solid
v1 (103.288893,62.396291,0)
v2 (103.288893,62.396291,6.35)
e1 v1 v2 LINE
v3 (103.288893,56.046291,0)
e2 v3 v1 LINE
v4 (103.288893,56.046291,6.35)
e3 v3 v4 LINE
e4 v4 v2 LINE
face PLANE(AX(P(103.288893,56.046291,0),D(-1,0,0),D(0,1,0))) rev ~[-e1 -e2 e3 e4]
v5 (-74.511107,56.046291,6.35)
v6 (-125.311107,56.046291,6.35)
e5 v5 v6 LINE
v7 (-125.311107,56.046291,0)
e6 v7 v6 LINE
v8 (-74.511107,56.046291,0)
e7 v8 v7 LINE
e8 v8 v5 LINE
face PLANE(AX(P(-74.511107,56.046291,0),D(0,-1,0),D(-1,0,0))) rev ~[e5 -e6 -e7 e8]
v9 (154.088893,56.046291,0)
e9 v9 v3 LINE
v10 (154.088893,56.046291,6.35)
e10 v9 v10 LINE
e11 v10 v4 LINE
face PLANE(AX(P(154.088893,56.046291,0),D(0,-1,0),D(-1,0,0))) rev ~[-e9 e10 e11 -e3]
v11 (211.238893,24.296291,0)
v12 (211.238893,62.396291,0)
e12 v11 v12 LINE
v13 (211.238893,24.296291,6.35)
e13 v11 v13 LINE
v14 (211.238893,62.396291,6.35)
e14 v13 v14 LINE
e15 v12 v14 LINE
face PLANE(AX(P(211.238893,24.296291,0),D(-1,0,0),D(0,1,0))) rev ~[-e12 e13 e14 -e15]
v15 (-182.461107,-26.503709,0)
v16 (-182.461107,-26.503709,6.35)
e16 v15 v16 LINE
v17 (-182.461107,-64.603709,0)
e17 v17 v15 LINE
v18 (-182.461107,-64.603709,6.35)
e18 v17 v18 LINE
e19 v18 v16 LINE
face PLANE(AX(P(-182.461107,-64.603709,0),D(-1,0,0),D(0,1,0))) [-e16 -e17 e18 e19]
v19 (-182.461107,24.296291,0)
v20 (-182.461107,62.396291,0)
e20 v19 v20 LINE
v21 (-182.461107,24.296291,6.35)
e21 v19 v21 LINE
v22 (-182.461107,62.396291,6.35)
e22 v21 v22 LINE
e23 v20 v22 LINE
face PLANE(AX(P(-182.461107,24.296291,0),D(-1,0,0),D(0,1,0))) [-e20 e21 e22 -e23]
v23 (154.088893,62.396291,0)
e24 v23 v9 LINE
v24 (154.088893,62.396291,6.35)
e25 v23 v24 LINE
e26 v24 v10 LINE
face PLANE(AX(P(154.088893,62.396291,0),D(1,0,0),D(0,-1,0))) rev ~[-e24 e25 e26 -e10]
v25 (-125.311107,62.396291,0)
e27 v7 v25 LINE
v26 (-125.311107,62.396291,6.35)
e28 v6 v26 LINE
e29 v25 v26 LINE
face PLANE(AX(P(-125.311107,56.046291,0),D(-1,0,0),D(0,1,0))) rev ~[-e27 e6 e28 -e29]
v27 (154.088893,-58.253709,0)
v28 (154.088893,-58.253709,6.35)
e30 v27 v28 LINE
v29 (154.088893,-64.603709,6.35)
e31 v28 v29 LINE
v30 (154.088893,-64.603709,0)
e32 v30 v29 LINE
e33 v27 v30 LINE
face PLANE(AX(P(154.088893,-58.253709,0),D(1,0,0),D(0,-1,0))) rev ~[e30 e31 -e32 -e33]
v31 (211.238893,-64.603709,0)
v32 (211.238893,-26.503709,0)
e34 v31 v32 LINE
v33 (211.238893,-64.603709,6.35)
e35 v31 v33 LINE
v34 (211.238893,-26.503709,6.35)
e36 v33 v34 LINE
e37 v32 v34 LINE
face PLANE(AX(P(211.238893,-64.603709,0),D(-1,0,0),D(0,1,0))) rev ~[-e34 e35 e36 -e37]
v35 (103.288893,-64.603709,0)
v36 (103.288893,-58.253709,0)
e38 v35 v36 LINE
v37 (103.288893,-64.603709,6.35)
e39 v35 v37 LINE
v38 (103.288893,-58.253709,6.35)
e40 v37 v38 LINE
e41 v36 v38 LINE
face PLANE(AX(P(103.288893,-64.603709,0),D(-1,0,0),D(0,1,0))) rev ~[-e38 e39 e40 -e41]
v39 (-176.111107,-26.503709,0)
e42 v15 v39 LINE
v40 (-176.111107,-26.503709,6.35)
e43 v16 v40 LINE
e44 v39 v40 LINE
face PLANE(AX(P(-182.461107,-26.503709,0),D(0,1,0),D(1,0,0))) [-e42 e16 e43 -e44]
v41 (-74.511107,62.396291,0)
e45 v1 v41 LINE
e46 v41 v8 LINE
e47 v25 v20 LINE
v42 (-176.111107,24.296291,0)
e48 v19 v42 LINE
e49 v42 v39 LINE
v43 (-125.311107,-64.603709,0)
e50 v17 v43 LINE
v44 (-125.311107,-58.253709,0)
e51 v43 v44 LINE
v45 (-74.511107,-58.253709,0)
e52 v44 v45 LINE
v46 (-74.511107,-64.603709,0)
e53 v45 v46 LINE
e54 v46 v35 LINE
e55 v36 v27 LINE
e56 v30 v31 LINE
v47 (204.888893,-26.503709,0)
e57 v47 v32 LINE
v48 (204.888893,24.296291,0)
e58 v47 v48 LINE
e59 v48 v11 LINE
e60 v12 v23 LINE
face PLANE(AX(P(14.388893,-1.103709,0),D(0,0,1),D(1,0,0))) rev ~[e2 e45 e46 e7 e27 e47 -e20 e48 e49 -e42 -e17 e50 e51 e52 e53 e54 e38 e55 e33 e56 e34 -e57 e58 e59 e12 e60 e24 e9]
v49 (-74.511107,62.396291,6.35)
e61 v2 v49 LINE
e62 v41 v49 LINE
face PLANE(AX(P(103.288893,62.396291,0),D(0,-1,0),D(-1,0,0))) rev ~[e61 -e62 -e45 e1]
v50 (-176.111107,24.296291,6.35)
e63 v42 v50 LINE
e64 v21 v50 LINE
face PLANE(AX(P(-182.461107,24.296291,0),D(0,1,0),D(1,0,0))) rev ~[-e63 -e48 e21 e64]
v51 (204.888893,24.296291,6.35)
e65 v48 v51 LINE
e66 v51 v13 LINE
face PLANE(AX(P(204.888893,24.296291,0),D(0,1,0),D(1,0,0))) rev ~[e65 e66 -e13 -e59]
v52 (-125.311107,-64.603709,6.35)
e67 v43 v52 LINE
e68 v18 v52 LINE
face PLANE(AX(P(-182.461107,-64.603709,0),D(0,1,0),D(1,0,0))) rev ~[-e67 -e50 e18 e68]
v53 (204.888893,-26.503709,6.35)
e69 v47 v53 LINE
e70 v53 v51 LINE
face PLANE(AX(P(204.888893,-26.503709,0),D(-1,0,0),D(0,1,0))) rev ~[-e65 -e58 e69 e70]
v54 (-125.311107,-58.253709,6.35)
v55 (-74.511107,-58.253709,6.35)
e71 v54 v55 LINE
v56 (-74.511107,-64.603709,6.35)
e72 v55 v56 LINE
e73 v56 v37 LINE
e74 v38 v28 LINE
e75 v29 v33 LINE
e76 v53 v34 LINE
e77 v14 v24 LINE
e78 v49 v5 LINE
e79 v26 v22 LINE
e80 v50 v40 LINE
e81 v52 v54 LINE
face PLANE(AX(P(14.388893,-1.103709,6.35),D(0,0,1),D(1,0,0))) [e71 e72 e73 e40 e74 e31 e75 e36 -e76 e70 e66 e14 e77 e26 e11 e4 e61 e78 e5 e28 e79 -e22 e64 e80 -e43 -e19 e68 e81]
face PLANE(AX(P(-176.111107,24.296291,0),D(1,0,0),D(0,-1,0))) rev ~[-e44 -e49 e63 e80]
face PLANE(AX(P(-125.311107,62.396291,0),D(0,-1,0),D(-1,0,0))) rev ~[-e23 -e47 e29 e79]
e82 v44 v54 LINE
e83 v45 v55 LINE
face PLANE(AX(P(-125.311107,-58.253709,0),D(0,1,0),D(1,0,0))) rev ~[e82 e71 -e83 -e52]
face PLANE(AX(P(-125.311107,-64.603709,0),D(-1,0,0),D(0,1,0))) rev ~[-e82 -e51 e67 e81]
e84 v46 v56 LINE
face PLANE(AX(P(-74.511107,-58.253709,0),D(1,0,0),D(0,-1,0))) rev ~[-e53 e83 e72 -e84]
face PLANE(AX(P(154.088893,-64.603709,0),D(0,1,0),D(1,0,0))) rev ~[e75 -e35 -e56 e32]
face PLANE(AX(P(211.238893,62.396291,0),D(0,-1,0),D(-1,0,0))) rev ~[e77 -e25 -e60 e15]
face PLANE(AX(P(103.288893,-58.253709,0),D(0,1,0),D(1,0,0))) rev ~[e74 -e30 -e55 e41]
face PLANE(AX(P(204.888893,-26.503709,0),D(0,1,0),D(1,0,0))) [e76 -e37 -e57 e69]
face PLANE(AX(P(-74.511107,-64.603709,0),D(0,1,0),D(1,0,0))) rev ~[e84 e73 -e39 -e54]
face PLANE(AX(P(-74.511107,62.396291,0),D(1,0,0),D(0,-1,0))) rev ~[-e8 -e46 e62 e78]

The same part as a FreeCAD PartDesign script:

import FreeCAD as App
import Part
import Sketcher
Q = App.Units.Quantity


def add_polygon(sketch, points):
    """Adds a closed chain of lines whose ends are joined by coincident constraints."""
    first, n = sketch.GeometryCount, len(points)
    for a, b in zip(points, points[1:] + points[:1]):
        sketch.addGeometry(Part.LineSegment(App.Vector(*a, 0), App.Vector(*b, 0)), False)
    for i in range(n):
        sketch.addConstraint(Sketcher.Constraint("Coincident", first + i, 2, first + (i + 1) % n, 1))

doc = App.newDocument("Part")
body = doc.addObject("PartDesign::Body", "Body")

# Sketch on XY plane
sketch1 = body.newObject("Sketcher::SketchObject", "Sketch")
sketch1.AttachmentSupport = (doc.getObject("XY_Plane"), [""])
sketch1.MapMode = "FlatFace"
add_polygon(sketch1, [(-125, 62), (-182, 62), (-182, 24), (-176, 24), (-176, -27), (-182, -27), (-182, -65), (-125, -65), (-125, -58), (-75, -58), (-75, -65), (103, -65), (103, -58), (154, -58), (154, -65), (211, -65), (211, -27), (205, -27), (205, 24), (211, 24), (211, 62), (154, 62), (154, 56), (103, 56), (103, 62), (-75, 62), (-75, 56), (-125, 56)])  # lines 0-27
sketch1.addConstraint([
    Sketcher.Constraint("Horizontal", 0),
    Sketcher.Constraint("Vertical", 1),
    Sketcher.Constraint("Horizontal", 2),
    Sketcher.Constraint("Vertical", 3),
    Sketcher.Constraint("Horizontal", 4),
    Sketcher.Constraint("Vertical", 5),
    Sketcher.Constraint("Horizontal", 6),
    Sketcher.Constraint("Vertical", 7),
    Sketcher.Constraint("Horizontal", 8),
    Sketcher.Constraint("Vertical", 9),
    Sketcher.Constraint("Horizontal", 10),
    Sketcher.Constraint("Vertical", 11),
    Sketcher.Constraint("Horizontal", 12),
    Sketcher.Constraint("Vertical", 13),
    Sketcher.Constraint("Horizontal", 14),
    Sketcher.Constraint("Vertical", 15),
    Sketcher.Constraint("Horizontal", 16),
    Sketcher.Constraint("Vertical", 17),
    Sketcher.Constraint("Horizontal", 18),
    Sketcher.Constraint("Vertical", 19),
    Sketcher.Constraint("Horizontal", 20),
    Sketcher.Constraint("Vertical", 21),
    Sketcher.Constraint("Horizontal", 22),
    Sketcher.Constraint("Vertical", 23),
    Sketcher.Constraint("Horizontal", 24),
    Sketcher.Constraint("Vertical", 25),
    Sketcher.Constraint("Horizontal", 26),
    Sketcher.Constraint("Vertical", 27),
    Sketcher.Constraint("Horizontal", 6, 2, 9, 2),
    Sketcher.Constraint("Horizontal", 8, 2, 11, 2),
    Sketcher.Constraint("Horizontal", 10, 2, 13, 2),
    Sketcher.Constraint("Horizontal", 4, 2, 15, 2),
    Sketcher.Constraint("Horizontal", 2, 2, 17, 2),
    Sketcher.Constraint("Horizontal", 0, 2, 19, 2),
    Sketcher.Constraint("Horizontal", 20, 2, 23, 2),
    Sketcher.Constraint("Horizontal", 22, 2, 25, 2),
    Sketcher.Constraint("Vertical", 1, 2, 4, 2),
    Sketcher.Constraint("Vertical", 15, 2, 18, 2),
    Sketcher.Constraint("Vertical", 13, 2, 20, 2),
    Sketcher.Constraint("Vertical", 11, 2, 22, 2),
    Sketcher.Constraint("Vertical", 9, 2, 24, 2),
    Sketcher.Constraint("Vertical", 7, 2, 26, 2),
    Sketcher.Constraint("Equal", 8, 12),
    Sketcher.Constraint("Equal", 6, 14),
    Sketcher.Constraint("Equal", 4, 16),
    Sketcher.Constraint("Equal", 26, 3),
    Sketcher.Constraint("Equal", 1, 5),
    Sketcher.Constraint("Equal", 18, 7),
    Sketcher.Constraint("Equal", 13, 21),
    Sketcher.Constraint("DistanceX", 8, 1, 8, 2, Q("2 in")),
    Sketcher.Constraint("DistanceX", 10, 1, 10, 2, Q("7 in")),
    Sketcher.Constraint("DistanceY", 1, 2, 1, 1, Q("1.5 in")),
    Sketcher.Constraint("DistanceX", 3, 2, 6, 2, Q("2 in")),
    Sketcher.Constraint("DistanceX", 0, 2, 0, 1, Q("2.25 in")),
    Sketcher.Constraint("DistanceY", -1, 1, 0, 2, Q("62.396291 mm")),
    Sketcher.Constraint("DistanceX", 0, 2, -1, 1, Q("182.461107 mm")),
])
pad1 = body.newObject("PartDesign::Pad", "Pad")
pad1.Profile = sketch1
pad1.Length = Q("0.25 in")

doc.recompute()
